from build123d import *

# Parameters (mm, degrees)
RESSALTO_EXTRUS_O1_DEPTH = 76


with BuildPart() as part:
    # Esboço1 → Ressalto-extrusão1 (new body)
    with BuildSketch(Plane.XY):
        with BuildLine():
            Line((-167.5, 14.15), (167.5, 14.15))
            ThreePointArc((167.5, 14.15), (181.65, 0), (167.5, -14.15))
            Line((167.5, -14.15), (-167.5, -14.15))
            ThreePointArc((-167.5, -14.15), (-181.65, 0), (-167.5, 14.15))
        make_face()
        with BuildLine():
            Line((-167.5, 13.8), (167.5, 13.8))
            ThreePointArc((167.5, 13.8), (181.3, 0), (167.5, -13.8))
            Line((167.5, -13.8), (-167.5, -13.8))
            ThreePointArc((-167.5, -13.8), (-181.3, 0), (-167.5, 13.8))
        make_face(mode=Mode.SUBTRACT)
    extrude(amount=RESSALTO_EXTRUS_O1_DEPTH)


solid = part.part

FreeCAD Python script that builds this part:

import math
import FreeCAD as App
import Part
import Sketcher
from FreeCAD import Vector
Q = App.Units.Quantity

doc = App.newDocument("Part")
params = doc.addObject("Spreadsheet::Sheet", "Params")
for row, (alias, value) in enumerate([
    ("sketch1_radius", "13.8 mm"),
    ("sketch1_width", "335 mm"),
    ("sketch1_radius2", "14.15 mm"),
    ("pad1_length", "76 mm"),
], start=1):
    params.set(f"A{row}", alias)
    params.set(f"B{row}", "=" + value)
    params.setAlias(f"B{row}", alias)

body = doc.addObject("PartDesign::Body", "Body")

# Sketch on XY plane
sketch1 = body.newObject("Sketcher::SketchObject", "Sketch")
sketch1.AttachmentSupport = (doc.getObject("XY_Plane"), [""])
sketch1.MapMode = "FlatFace"
sketch1.addGeometry([
    Part.LineSegment(Vector(167.5, 14.15, 0), Vector(-167.5, 14.15, 0)),  # 0
    Part.ArcOfCircle(Part.Circle(Vector(-167.5, 0, 0), Vector(0, 0, 1), 14.15), math.radians(90), math.radians(270)),  # 1
    Part.LineSegment(Vector(-167.5, -14.15, 0), Vector(167.5, -14.15, 0)),  # 2
    Part.ArcOfCircle(Part.Circle(Vector(167.5, 0, 0), Vector(0, 0, 1), 14.15), math.radians(-90), math.radians(90)),  # 3
    Part.LineSegment(Vector(-167.5, 13.8, 0), Vector(167.5, 13.8, 0)),  # 4
    Part.ArcOfCircle(Part.Circle(Vector(167.5, 0, 0), Vector(0, 0, 1), 13.8), math.radians(-90), math.radians(90)),  # 5
    Part.LineSegment(Vector(167.5, -13.8, 0), Vector(-167.5, -13.8, 0)),  # 6
    Part.ArcOfCircle(Part.Circle(Vector(-167.5, 0, 0), Vector(0, 0, 1), 13.8), math.radians(90), math.radians(270)),  # 7
], False)
sketch1.addConstraint([
    Sketcher.Constraint("Tangent", 0, 2, 1, 1),
    Sketcher.Constraint("Tangent", 1, 2, 2, 1),
    Sketcher.Constraint("Tangent", 2, 2, 3, 1),
    Sketcher.Constraint("Tangent", 3, 2, 0, 1),
    Sketcher.Constraint("Tangent", 4, 2, 5, 2),
    Sketcher.Constraint("Tangent", 5, 1, 6, 1),
    Sketcher.Constraint("Tangent", 6, 2, 7, 2),
    Sketcher.Constraint("Tangent", 7, 1, 4, 1),
    Sketcher.Constraint("Horizontal", 0),
    Sketcher.Constraint("Horizontal", 2),
    Sketcher.Constraint("Horizontal", 4),
    Sketcher.Constraint("Horizontal", 6),
    Sketcher.Constraint("Coincident", 5, 3, 3, 3),
    Sketcher.Constraint("Symmetric", 1, 3, 3, 3, -1, 1),
    Sketcher.Constraint("Vertical", 7, 3, 0, 2),
    Sketcher.Constraint("Radius", 5, Q("13.8 mm")),
    Sketcher.Constraint("DistanceX", 0, 2, 0, 1, Q("335 mm")),
    Sketcher.Constraint("Radius", 1, Q("14.15 mm")),
])
sketch1.setExpression("Constraints[15]", "Params.sketch1_radius")
sketch1.setExpression("Constraints[16]", "Params.sketch1_width")
sketch1.setExpression("Constraints[17]", "Params.sketch1_radius2")
pad1 = body.newObject("PartDesign::Pad", "Pad")
pad1.Profile = sketch1
pad1.setExpression("Length", "Params.pad1_length")

doc.recompute()
